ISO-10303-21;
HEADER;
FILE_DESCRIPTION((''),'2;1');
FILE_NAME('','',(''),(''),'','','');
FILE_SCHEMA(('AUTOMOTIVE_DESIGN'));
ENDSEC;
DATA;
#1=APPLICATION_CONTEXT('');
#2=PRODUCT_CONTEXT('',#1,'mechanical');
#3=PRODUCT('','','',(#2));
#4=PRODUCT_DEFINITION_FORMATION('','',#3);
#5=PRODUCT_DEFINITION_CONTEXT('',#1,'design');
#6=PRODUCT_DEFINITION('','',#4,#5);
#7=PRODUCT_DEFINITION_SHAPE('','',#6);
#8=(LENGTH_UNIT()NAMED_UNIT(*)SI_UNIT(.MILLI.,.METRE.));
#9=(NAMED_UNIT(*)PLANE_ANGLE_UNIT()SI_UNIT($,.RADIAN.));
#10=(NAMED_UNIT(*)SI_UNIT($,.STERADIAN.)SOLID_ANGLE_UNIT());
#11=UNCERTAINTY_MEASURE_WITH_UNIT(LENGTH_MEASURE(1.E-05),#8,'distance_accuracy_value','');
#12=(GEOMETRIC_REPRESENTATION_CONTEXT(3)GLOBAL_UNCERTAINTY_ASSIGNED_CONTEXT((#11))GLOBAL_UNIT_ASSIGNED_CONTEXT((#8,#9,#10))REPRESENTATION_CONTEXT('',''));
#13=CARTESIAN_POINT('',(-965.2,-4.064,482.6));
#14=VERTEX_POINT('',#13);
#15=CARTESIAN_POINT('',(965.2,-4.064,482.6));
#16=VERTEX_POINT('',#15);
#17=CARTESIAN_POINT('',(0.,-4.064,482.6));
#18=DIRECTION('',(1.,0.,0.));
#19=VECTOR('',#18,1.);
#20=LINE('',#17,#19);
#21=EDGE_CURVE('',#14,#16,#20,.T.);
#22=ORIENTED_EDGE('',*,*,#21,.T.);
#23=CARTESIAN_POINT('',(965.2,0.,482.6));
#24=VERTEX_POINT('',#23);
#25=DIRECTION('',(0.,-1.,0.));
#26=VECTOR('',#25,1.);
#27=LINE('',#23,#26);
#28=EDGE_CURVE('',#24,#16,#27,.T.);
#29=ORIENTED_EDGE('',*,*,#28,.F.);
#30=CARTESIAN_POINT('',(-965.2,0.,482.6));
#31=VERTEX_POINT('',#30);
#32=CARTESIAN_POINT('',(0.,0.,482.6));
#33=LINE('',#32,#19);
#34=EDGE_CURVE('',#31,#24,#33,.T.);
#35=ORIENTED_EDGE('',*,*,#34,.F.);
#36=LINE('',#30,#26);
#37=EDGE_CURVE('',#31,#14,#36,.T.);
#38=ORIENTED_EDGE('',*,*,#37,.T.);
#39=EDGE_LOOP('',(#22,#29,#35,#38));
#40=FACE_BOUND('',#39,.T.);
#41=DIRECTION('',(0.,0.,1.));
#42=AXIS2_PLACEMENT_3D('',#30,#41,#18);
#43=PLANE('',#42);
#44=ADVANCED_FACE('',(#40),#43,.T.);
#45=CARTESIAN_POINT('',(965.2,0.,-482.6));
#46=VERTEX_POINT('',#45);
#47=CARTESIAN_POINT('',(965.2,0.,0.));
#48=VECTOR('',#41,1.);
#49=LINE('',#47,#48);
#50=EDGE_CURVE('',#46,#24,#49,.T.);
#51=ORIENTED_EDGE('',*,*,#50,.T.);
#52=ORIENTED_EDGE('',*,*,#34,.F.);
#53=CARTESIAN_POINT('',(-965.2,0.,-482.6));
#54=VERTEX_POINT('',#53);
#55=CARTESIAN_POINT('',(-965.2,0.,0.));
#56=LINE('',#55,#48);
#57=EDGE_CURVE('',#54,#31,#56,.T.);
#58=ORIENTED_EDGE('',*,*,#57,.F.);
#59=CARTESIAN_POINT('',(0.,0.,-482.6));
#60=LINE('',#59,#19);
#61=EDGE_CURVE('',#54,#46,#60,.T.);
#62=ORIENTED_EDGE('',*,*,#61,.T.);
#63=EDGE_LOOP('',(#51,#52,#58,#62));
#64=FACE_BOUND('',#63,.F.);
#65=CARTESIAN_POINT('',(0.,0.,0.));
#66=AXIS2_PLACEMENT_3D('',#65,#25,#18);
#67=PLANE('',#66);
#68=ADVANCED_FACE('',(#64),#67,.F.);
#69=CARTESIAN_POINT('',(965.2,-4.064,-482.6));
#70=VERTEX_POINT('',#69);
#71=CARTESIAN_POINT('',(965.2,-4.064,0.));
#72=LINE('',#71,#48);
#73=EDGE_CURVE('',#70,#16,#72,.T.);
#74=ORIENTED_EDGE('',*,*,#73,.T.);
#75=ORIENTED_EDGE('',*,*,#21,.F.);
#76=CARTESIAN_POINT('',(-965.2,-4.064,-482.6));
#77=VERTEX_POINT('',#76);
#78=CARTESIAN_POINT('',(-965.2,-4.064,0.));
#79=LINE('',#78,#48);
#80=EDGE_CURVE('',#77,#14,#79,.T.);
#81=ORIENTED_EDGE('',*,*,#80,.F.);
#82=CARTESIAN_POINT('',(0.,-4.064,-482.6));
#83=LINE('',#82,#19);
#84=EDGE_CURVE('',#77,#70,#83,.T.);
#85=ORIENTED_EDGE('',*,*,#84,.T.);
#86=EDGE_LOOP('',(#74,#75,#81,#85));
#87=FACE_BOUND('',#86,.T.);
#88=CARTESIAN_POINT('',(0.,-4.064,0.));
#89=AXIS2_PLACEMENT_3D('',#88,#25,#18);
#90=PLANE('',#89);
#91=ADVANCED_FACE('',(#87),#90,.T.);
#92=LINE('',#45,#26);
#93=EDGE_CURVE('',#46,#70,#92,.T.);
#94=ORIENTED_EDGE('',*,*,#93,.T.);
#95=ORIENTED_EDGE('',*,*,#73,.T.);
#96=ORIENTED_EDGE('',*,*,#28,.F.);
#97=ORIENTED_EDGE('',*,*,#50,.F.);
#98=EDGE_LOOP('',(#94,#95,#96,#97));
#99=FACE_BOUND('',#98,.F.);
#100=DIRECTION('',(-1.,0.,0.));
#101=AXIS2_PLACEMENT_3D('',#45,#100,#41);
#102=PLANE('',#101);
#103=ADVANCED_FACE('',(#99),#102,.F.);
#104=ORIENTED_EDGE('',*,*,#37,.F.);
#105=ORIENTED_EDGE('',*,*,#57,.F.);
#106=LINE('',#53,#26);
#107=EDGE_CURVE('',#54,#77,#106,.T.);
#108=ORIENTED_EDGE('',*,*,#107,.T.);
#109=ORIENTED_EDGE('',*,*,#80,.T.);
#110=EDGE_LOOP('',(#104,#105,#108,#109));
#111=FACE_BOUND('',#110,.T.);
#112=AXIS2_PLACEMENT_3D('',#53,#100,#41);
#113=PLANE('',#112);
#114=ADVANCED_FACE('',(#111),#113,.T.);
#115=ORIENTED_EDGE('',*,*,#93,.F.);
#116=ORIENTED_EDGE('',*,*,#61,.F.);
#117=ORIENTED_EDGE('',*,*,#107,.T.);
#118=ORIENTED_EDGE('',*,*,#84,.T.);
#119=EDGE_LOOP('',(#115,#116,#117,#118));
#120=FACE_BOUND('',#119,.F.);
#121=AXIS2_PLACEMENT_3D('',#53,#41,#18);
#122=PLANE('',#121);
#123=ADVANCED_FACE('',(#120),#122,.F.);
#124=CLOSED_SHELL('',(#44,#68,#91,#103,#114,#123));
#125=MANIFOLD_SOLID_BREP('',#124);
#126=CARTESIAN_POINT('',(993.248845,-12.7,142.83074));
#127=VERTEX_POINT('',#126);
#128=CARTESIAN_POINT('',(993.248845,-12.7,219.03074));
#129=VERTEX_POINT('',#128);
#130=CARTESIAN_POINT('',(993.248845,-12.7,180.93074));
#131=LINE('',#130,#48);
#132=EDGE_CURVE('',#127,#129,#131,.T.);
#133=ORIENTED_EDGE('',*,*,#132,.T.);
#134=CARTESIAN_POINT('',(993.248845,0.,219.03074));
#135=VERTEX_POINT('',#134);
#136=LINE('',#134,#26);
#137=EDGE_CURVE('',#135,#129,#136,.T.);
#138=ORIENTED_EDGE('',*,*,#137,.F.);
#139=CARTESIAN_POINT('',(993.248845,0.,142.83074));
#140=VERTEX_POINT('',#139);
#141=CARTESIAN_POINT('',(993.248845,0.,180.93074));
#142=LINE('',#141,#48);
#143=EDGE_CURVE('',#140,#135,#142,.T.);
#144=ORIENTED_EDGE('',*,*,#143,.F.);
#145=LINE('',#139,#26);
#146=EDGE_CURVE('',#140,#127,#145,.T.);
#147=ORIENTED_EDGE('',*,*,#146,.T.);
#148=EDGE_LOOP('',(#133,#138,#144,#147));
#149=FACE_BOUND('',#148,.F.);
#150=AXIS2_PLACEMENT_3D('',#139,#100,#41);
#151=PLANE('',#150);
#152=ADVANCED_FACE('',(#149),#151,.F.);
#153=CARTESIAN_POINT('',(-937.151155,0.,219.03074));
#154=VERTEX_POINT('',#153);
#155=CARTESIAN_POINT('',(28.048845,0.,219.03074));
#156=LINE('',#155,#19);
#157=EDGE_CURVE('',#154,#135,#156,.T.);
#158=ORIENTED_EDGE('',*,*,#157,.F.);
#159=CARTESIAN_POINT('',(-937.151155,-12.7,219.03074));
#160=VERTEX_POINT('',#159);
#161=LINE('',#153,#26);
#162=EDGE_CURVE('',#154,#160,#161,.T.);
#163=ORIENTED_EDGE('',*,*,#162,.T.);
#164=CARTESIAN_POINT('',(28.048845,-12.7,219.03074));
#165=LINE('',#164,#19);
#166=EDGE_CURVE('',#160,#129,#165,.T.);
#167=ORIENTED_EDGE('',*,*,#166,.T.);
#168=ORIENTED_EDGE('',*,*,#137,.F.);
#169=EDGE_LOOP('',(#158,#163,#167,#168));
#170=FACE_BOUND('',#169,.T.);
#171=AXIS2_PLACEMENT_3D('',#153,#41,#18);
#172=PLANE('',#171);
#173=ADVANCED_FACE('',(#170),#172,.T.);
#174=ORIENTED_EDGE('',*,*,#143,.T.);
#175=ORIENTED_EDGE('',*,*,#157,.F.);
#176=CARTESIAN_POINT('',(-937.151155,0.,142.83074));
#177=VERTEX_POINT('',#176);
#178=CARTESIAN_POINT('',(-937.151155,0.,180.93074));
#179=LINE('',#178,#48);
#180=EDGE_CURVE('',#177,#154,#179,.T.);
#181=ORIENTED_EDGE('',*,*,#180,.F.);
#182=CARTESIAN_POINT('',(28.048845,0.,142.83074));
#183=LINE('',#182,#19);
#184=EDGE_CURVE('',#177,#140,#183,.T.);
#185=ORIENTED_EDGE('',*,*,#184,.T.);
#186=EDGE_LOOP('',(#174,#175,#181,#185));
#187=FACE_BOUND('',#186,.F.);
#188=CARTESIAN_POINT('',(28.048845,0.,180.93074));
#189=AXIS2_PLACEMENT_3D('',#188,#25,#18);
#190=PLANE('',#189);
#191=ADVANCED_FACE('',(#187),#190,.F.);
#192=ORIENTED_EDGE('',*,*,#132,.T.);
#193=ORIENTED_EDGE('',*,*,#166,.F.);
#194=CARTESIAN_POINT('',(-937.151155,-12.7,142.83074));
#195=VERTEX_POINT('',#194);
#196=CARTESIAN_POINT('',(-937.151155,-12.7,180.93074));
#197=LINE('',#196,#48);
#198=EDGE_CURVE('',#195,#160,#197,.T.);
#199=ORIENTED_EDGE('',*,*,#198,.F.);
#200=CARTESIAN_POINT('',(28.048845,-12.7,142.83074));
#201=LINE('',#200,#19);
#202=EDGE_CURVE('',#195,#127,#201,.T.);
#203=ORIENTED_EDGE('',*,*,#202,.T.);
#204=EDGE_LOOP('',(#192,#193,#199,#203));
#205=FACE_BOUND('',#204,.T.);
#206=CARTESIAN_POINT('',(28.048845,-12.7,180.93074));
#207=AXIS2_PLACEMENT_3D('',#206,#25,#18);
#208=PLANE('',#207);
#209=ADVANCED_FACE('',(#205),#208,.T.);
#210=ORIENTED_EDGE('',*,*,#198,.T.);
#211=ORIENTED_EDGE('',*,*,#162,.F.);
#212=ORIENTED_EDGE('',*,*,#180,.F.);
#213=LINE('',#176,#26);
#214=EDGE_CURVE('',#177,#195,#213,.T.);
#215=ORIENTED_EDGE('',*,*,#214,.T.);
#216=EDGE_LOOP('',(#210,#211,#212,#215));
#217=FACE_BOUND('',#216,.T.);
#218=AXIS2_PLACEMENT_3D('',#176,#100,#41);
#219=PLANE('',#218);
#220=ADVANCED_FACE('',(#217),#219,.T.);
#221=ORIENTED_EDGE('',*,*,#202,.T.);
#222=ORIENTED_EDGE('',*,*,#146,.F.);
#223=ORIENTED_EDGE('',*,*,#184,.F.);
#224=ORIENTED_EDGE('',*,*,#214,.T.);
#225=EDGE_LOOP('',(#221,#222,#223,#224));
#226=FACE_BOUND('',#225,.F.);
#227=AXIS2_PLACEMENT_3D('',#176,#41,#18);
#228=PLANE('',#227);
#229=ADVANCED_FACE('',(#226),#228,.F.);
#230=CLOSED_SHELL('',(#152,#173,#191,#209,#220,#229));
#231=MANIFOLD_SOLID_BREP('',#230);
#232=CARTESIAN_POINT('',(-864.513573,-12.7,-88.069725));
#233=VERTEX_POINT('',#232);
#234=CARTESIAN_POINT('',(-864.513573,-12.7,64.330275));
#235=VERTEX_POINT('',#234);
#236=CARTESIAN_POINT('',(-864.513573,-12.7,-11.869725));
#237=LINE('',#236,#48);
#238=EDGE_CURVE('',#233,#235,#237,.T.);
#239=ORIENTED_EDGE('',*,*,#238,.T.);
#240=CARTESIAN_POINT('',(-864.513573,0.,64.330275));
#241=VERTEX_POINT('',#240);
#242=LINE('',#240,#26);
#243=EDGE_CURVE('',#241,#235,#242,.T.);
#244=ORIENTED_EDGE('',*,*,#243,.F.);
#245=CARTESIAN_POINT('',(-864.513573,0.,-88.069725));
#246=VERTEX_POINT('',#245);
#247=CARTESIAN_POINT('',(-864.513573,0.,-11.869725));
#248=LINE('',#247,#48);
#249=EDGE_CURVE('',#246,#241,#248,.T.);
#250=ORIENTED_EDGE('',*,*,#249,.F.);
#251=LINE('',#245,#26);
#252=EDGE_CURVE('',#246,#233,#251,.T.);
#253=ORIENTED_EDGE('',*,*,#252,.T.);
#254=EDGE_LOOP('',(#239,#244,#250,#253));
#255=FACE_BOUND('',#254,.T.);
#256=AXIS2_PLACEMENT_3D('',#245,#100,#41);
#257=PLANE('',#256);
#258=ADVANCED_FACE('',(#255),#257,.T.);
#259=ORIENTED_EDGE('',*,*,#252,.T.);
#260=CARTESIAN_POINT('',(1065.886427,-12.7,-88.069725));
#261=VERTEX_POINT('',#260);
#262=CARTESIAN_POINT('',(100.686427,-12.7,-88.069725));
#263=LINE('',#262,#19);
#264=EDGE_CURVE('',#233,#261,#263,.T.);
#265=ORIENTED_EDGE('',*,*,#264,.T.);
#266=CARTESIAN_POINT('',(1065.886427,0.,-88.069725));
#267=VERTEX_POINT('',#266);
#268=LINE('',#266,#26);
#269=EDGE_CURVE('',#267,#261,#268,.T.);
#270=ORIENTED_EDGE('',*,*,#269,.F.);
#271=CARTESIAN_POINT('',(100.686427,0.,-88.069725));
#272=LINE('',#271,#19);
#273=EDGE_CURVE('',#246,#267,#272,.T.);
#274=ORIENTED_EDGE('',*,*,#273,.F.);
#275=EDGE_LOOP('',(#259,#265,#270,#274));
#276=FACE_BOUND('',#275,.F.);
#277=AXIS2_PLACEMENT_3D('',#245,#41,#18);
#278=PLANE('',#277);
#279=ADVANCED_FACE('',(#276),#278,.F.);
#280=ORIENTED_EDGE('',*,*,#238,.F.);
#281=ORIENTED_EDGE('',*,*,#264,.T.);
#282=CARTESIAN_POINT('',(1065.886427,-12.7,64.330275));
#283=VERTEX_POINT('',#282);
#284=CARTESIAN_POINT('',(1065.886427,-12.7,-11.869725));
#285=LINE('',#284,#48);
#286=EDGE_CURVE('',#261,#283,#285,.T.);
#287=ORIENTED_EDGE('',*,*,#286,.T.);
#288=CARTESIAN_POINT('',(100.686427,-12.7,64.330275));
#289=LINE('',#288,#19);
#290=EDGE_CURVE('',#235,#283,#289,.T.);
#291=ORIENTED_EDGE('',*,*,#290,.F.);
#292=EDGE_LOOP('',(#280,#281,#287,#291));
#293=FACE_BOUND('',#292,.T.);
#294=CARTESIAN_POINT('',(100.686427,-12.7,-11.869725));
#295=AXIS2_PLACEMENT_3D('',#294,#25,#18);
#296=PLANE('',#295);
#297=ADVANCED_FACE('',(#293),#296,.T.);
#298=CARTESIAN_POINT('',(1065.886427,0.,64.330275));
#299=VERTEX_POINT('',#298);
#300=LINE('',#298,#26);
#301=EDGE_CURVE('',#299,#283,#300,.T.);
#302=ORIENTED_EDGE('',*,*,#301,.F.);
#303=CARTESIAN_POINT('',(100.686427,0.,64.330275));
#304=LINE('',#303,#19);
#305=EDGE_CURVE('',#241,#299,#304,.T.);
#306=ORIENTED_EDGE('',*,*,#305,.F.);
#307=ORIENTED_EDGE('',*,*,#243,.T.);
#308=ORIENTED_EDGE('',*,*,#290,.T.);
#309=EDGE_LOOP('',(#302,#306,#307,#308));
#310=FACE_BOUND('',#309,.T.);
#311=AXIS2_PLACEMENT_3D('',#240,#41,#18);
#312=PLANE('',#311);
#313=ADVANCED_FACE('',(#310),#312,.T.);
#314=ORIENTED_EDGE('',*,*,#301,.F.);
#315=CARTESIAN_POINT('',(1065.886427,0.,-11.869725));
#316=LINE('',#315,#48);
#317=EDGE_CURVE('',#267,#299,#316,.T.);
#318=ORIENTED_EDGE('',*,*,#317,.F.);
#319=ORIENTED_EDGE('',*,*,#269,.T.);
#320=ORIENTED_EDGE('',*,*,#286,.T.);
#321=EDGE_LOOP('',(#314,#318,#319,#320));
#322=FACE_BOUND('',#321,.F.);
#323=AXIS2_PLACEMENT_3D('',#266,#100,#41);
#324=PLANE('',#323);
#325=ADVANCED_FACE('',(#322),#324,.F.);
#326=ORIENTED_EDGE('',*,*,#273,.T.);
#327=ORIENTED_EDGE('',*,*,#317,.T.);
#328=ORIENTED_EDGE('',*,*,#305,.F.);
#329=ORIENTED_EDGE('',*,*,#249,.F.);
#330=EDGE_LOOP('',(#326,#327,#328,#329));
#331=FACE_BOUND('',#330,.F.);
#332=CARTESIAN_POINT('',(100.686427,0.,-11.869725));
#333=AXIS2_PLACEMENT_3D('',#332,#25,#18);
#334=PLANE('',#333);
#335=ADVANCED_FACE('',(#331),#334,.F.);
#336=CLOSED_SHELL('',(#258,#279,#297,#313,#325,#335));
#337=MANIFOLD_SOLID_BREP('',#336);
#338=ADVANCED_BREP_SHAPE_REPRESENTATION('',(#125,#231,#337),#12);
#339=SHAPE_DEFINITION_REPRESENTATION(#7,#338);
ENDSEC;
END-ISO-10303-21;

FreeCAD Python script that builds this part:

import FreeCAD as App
import Part
import Sketcher

V = App.Vector
Q = App.Units.Quantity


def add_polygon(sketch, points):
    """Adds a closed chain of lines whose ends are joined by coincident constraints."""
    first, n = sketch.GeometryCount, len(points)
    for a, b in zip(points, points[1:] + points[:1]):
        sketch.addGeometry(Part.LineSegment(App.Vector(*a, 0), App.Vector(*b, 0)), False)
    for i in range(n):
        sketch.addConstraint(Sketcher.Constraint("Coincident", first + i, 2, first + (i + 1) % n, 1))

doc = App.newDocument("Part")
body = doc.addObject("PartDesign::Body", "Body")

sketch1 = body.newObject("Sketcher::SketchObject", "Sketch")
sketch1.AttachmentSupport = (doc.getObject("XZ_Plane"), [""])
sketch1.MapMode = "FlatFace"
add_polygon(sketch1, [(-864.513573, 64.330275), (-864.513573, -88.069725), (1065.886427, -88.069725), (1065.886427, 64.330275)])
sketch1.addConstraint(Sketcher.Constraint("Vertical", 0))
sketch1.addConstraint(Sketcher.Constraint("Horizontal", 1))
sketch1.addConstraint(Sketcher.Constraint("Vertical", 2))
sketch1.addConstraint(Sketcher.Constraint("Horizontal", 3))
sketch1.addConstraint(Sketcher.Constraint("DistanceX", 1, 1, 1, 2, Q("76 in")))
sketch1.addConstraint(Sketcher.Constraint("DistanceY", 0, 2, 0, 1, Q("6 in")))
sketch1.addConstraint(Sketcher.Constraint("DistanceX", 0, 2, -1, 1, 864.513573))
sketch1.addConstraint(Sketcher.Constraint("DistanceY", 0, 2, -1, 1, 88.069725))
pad1 = body.newObject("PartDesign::Pad", "Pad")
pad1.Profile = sketch1
pad1.Length = Q("0.5 in")
body2 = doc.addObject("PartDesign::Body", "Body001")

sketch2 = body2.newObject("Sketcher::SketchObject", "Sketch001")
sketch2.AttachmentSupport = (doc.getObject("XZ_Plane001"), [""])
sketch2.MapMode = "FlatFace"
add_polygon(sketch2, [(-937.151155, 219.03074), (-937.151155, 142.83074), (993.248845, 142.83074), (993.248845, 219.03074)])
sketch2.addConstraint(Sketcher.Constraint("Vertical", 0))
sketch2.addConstraint(Sketcher.Constraint("Horizontal", 1))
sketch2.addConstraint(Sketcher.Constraint("Vertical", 2))
sketch2.addConstraint(Sketcher.Constraint("Horizontal", 3))
sketch2.addConstraint(Sketcher.Constraint("DistanceX", 1, 1, 1, 2, Q("76 in")))
sketch2.addConstraint(Sketcher.Constraint("DistanceY", 0, 2, 0, 1, Q("3 in")))
sketch2.addConstraint(Sketcher.Constraint("DistanceY", -1, 1, 0, 2, 142.83074))
sketch2.addConstraint(Sketcher.Constraint("DistanceX", 0, 2, -1, 1, 937.151155))
pad2 = body2.newObject("PartDesign::Pad", "Pad001")
pad2.Profile = sketch2
pad2.Length = Q("0.5 in")
body3 = doc.addObject("PartDesign::Body", "Body002")

sketch3 = body3.newObject("Sketcher::SketchObject", "Sketch002")
sketch3.AttachmentSupport = (doc.getObject("XZ_Plane002"), [""])
sketch3.MapMode = "FlatFace"
add_polygon(sketch3, [(-965.2, 482.6), (-965.2, -482.6), (965.2, -482.6), (965.2, 482.6)])
sketch3.addConstraint(Sketcher.Constraint("Vertical", 0))
sketch3.addConstraint(Sketcher.Constraint("Horizontal", 1))
sketch3.addConstraint(Sketcher.Constraint("Vertical", 2))
sketch3.addConstraint(Sketcher.Constraint("Horizontal", 3))
sketch3.addConstraint(Sketcher.Constraint("Symmetric", 0, 2, 2, 2, -1, 1))
sketch3.addConstraint(Sketcher.Constraint("DistanceX", 1, 1, 1, 2, Q("76 in")))
sketch3.addConstraint(Sketcher.Constraint("DistanceY", 0, 2, 0, 1, Q("38 in")))
pad3 = body3.newObject("PartDesign::Pad", "Pad002")
pad3.Profile = sketch3
pad3.Length = Q("0.16 in")

doc.recompute()
